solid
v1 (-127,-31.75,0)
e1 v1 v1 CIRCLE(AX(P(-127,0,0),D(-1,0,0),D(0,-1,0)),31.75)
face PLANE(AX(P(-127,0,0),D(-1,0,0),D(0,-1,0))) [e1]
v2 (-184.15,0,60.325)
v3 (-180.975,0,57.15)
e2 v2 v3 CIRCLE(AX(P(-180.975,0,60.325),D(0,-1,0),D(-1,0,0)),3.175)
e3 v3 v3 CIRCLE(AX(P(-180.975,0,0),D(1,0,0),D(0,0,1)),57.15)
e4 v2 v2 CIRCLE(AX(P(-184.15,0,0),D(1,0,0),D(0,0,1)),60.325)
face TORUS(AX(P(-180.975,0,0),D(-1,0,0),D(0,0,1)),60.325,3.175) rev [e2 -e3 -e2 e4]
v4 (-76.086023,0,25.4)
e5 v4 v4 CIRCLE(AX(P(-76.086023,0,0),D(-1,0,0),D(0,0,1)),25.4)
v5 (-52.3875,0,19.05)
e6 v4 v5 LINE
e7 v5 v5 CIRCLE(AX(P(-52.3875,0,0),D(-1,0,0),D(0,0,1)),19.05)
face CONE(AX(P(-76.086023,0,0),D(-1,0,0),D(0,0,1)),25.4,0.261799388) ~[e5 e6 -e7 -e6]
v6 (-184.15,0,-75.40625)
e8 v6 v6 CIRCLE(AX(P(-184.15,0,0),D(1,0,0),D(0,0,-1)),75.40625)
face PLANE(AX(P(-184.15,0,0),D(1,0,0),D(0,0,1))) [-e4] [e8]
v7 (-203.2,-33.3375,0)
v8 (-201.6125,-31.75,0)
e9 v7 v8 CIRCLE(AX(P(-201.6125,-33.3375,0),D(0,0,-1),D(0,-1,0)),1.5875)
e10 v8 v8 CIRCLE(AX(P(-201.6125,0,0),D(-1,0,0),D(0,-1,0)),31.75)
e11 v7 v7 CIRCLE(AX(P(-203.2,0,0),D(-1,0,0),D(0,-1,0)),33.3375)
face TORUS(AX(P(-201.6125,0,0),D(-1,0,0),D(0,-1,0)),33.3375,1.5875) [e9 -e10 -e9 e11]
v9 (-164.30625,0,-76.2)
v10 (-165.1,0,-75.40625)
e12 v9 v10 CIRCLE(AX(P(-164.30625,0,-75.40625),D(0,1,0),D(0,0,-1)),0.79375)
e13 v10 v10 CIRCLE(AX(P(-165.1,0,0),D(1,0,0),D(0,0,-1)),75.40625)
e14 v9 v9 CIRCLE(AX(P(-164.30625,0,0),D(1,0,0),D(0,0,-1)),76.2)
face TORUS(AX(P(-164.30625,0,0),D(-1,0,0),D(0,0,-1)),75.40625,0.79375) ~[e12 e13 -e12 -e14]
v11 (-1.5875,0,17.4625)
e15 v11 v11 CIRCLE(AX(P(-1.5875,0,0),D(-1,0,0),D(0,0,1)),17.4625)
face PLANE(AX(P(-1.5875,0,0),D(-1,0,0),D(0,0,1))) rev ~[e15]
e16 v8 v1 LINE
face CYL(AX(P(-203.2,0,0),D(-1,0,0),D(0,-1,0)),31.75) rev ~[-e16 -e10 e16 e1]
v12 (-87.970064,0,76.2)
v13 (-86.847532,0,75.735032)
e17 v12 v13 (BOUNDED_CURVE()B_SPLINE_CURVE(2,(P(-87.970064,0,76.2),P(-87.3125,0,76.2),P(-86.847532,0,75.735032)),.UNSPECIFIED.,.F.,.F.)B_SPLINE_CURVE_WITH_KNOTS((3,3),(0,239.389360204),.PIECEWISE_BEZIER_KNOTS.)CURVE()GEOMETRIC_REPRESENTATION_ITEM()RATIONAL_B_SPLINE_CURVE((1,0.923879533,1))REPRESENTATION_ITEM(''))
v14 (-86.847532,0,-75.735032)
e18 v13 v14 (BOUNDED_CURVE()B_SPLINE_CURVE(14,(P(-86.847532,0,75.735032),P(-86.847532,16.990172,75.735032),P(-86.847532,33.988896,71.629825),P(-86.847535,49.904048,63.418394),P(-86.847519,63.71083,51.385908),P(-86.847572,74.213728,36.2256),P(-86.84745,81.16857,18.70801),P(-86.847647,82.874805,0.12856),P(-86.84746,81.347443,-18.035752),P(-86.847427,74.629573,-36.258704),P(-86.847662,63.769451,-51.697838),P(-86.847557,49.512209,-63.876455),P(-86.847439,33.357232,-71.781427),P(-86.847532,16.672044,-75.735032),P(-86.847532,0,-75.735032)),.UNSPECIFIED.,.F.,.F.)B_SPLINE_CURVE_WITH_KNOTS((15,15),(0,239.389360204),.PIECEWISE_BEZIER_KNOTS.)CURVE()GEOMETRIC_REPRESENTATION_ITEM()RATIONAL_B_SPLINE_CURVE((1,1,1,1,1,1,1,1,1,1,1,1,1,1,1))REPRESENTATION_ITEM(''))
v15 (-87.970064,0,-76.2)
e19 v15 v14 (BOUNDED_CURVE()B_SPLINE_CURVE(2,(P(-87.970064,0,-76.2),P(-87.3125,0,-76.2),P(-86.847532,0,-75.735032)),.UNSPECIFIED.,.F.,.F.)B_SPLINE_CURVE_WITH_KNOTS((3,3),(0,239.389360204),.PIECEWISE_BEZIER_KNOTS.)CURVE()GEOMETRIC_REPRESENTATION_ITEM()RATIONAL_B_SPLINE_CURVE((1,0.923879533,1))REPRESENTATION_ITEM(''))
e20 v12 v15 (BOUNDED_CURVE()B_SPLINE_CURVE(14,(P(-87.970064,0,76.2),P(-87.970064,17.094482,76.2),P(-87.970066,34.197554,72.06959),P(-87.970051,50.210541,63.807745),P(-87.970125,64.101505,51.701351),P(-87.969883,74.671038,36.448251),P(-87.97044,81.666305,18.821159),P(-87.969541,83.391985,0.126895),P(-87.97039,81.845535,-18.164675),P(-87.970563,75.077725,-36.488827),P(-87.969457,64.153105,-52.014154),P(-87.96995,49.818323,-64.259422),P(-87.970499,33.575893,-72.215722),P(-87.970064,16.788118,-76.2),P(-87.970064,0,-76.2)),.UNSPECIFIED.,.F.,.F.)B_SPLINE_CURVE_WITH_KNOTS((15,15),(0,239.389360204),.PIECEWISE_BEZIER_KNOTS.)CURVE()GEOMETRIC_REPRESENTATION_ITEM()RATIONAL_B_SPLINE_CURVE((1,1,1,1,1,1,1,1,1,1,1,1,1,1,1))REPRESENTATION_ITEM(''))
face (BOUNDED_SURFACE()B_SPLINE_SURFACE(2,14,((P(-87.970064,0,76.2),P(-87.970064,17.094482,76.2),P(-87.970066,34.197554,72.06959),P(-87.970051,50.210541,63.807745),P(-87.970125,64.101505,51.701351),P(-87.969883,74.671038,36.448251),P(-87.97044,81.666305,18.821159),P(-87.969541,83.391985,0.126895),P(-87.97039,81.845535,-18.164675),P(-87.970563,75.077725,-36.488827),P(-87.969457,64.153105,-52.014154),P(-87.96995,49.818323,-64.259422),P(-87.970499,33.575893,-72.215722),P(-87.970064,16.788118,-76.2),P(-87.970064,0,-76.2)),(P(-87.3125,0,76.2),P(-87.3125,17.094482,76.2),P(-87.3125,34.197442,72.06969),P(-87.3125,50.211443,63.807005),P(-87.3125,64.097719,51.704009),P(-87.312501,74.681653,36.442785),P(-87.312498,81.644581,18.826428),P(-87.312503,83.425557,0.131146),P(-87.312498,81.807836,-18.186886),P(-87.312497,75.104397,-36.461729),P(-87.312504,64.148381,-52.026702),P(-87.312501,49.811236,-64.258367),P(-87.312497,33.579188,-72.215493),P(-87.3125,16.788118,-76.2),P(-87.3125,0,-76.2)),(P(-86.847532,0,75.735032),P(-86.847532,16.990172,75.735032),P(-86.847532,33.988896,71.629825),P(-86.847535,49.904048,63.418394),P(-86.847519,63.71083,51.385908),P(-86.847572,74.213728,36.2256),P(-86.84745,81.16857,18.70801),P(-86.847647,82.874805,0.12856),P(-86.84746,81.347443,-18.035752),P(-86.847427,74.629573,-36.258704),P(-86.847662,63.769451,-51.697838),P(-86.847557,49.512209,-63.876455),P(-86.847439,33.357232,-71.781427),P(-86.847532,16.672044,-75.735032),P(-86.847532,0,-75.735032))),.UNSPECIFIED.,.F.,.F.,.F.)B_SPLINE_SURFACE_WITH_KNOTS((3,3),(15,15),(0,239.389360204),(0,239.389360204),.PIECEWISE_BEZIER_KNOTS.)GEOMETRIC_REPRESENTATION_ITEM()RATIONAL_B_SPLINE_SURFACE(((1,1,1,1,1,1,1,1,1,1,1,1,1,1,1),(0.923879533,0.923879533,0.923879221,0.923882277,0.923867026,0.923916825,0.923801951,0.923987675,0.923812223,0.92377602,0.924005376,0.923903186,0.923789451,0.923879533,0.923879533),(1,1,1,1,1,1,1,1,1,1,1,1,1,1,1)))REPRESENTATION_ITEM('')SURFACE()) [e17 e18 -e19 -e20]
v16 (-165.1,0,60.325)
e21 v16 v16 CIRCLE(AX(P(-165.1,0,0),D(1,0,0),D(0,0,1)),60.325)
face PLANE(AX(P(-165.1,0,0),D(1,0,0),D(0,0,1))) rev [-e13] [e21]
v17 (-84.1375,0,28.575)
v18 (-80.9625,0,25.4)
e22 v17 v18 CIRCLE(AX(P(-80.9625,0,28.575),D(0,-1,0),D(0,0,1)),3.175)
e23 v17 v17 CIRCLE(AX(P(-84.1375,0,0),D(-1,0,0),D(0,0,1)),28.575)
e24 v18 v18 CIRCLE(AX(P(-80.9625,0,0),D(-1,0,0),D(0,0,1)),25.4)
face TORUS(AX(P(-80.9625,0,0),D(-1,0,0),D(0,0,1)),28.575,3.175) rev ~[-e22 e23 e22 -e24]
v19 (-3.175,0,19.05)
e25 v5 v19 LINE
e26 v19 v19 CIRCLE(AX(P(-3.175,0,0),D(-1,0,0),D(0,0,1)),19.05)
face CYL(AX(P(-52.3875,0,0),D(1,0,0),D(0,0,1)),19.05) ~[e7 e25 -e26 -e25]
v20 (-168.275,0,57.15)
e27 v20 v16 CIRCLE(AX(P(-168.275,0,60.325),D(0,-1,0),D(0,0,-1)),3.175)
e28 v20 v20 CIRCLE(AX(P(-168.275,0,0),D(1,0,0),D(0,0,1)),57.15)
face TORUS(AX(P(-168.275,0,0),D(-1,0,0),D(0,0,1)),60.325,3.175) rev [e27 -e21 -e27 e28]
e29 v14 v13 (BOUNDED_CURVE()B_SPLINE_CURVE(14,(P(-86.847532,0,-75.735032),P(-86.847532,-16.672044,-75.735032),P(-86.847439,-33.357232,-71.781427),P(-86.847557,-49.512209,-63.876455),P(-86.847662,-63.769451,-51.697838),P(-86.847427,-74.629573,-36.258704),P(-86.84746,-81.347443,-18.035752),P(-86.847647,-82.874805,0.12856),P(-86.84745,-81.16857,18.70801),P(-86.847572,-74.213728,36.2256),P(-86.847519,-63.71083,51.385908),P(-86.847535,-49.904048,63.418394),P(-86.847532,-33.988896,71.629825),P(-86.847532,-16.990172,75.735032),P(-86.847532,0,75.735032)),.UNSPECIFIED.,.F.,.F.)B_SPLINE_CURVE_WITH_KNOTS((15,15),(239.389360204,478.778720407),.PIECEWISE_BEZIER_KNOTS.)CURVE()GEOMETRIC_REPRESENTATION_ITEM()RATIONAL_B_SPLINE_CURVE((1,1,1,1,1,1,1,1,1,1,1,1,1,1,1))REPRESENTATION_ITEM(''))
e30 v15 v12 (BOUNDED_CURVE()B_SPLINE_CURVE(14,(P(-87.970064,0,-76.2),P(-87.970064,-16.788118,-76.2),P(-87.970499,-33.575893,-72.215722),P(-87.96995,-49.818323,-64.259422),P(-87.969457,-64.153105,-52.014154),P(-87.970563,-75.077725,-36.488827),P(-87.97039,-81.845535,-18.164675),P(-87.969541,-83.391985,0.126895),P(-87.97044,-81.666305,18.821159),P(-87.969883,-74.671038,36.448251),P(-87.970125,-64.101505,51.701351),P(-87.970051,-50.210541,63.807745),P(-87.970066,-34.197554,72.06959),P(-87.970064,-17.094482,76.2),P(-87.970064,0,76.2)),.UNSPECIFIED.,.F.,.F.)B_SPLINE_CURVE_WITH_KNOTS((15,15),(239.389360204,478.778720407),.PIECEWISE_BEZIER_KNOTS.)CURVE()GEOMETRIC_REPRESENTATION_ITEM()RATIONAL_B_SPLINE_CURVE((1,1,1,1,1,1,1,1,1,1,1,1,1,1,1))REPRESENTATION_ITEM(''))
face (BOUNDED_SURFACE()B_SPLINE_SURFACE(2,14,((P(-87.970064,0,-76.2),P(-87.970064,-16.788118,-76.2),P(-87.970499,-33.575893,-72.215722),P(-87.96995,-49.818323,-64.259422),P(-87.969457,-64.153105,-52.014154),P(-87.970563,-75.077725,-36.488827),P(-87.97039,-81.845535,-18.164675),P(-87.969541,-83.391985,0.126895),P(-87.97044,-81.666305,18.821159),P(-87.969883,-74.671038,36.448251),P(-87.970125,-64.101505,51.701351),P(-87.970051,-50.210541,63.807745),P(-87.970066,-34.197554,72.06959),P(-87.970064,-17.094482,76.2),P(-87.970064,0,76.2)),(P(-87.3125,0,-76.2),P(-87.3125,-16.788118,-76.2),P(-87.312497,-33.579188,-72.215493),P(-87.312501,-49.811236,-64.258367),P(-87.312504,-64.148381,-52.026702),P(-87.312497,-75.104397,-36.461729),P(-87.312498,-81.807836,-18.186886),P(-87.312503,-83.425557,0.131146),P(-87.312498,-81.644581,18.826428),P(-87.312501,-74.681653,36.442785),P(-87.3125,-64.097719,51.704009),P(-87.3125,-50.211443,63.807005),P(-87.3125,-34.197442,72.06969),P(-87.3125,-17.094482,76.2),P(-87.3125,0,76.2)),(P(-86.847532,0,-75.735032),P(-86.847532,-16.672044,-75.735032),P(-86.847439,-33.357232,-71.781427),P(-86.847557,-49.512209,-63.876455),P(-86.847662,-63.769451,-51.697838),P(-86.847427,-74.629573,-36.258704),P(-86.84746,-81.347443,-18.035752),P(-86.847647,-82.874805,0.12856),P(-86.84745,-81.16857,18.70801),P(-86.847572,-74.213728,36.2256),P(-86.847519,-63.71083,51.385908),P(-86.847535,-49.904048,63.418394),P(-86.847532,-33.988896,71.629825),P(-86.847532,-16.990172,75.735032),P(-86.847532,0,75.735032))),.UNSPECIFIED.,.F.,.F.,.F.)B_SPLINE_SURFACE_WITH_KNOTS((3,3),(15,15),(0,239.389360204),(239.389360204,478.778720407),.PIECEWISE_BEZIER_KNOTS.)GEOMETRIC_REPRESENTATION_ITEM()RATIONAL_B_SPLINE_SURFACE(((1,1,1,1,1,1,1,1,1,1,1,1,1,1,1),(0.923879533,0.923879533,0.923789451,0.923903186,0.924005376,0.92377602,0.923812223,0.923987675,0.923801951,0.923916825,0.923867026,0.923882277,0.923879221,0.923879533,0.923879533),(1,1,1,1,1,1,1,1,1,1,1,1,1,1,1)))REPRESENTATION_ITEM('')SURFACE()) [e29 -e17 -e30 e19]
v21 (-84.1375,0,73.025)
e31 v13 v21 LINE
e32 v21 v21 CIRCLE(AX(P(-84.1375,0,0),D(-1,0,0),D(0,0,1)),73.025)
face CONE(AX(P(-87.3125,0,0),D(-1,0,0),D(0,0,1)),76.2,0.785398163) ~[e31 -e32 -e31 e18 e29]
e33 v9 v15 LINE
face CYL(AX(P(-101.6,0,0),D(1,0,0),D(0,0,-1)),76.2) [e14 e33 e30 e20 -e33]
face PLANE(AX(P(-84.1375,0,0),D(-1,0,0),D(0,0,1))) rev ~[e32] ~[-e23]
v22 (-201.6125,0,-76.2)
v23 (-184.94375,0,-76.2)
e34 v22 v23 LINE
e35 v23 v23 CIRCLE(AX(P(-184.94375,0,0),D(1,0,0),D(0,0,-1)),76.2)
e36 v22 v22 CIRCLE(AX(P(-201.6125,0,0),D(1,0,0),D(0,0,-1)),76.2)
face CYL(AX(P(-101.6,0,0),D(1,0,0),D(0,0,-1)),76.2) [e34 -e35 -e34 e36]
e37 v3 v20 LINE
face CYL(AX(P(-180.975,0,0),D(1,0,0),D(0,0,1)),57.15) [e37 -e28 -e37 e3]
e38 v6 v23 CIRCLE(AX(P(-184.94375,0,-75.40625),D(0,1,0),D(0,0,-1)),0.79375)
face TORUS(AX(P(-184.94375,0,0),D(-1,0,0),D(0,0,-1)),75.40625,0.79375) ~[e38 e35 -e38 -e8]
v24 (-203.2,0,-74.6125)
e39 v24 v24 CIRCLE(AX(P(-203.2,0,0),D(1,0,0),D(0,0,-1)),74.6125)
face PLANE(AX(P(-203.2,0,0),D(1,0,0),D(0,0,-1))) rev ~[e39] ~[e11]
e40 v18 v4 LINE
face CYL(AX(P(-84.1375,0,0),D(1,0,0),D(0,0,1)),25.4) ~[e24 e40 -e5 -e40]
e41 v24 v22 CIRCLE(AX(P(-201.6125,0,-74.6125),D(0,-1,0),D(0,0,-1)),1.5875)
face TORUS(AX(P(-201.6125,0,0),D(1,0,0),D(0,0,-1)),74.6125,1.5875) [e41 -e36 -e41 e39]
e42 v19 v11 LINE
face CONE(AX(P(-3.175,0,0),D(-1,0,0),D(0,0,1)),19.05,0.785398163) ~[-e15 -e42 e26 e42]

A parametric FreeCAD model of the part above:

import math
import FreeCAD as App
import Part
import Sketcher
from FreeCAD import Vector
Q = App.Units.Quantity


def edges_at(feature, points):
    """Names of the edges that pass closest to the given points."""
    edges = feature.Shape.Edges
    near = lambda p: min(range(len(edges)), key=lambda i: edges[i].distToShape(Part.Vertex(*p))[0])
    return sorted({f"Edge{near(p) + 1}" for p in points})

doc = App.newDocument("Part")
body = doc.addObject("PartDesign::Body", "Body")

# Sketch on XZ plane
sketch1 = doc.addObject("Sketcher::SketchObject", "Sketch")
body.addObject(sketch1)
sketch1.AttachmentSupport = (doc.XZ_Plane, [""])
sketch1.MapMode = "FlatFace"
sketch1.addGeometry(Part.LineSegment(Vector(-203, 0, 0), Vector(-203, -76, 0)), False)
sketch1.addGeometry(Part.LineSegment(Vector(-203, -76, 0), Vector(0, -76, 0)), False)
sketch1.addGeometry(Part.LineSegment(Vector(0, -76, 0), Vector(0, 0, 0)), False)
sketch1.addGeometry(Part.LineSegment(Vector(0, 0, 0), Vector(-203, 0, 0)), False)
sketch1.addConstraint(Sketcher.Constraint("Coincident", 0, 2, 1, 1))
sketch1.addConstraint(Sketcher.Constraint("Coincident", 1, 2, 2, 1))
sketch1.addConstraint(Sketcher.Constraint("Coincident", 2, 2, 3, 1))
sketch1.addConstraint(Sketcher.Constraint("Coincident", 3, 2, 0, 1))
sketch1.addConstraint(Sketcher.Constraint("Vertical", 0))
sketch1.addConstraint(Sketcher.Constraint("Horizontal", 1))
sketch1.addConstraint(Sketcher.Constraint("Vertical", 2))
sketch1.addConstraint(Sketcher.Constraint("Horizontal", 3))
sketch1.addConstraint(Sketcher.Constraint("Coincident", 2, 2, -1, 1))
sketch1.addConstraint(Sketcher.Constraint("DistanceX", 1, 1, 1, 2, Q("8 in")))
sketch1.addConstraint(Sketcher.Constraint("DistanceY", 0, 2, 0, 1, Q("3 in")))
revolution = doc.addObject("PartDesign::Revolution", "Revolution")
body.addObject(revolution)
revolution.Profile = sketch1
revolution.ReferenceAxis = (sketch1, ["H_Axis"])
revolution.Angle = 360

# Sketch on XZ plane
sketch2 = doc.addObject("Sketcher::SketchObject", "Sketch001")
body.addObject(sketch2)
sketch2.AttachmentSupport = (doc.XZ_Plane, [""])
sketch2.MapMode = "FlatFace"
sketch2.addGeometry(Part.LineSegment(Vector(-1.6, 0, 0), Vector(0, 0, 0)), False)
sketch2.addGeometry(Part.LineSegment(Vector(0, 0, 0), Vector(0, 76.2, 0)), False)
sketch2.addGeometry(Part.LineSegment(Vector(0, 76.2, 0), Vector(-87.3, 76.2, 0)), False)
sketch2.addGeometry(Part.LineSegment(Vector(-87.3, 76.2, 0), Vector(-84.1, 73, 0)), False)
sketch2.addGeometry(Part.LineSegment(Vector(-84.1, 73, 0), Vector(-84.1, 25.4, 0)), False)
sketch2.addGeometry(Part.LineSegment(Vector(-84.1, 25.4, 0), Vector(-76.1, 25.4, 0)), False)
sketch2.addGeometry(Part.LineSegment(Vector(-76.1, 25.4, 0), Vector(-52.4, 19.1, 0)), False)
sketch2.addGeometry(Part.LineSegment(Vector(-52.4, 19.1, 0), Vector(-3.2, 19.1, 0)), False)
sketch2.addGeometry(Part.LineSegment(Vector(-3.2, 19.1, 0), Vector(-1.6, 17.5, 0)), False)
sketch2.addGeometry(Part.LineSegment(Vector(-1.6, 17.5, 0), Vector(-1.6, 0, 0)), False)
sketch2.addConstraint(Sketcher.Constraint("Coincident", 0, 2, 1, 1))
sketch2.addConstraint(Sketcher.Constraint("Coincident", 1, 2, 2, 1))
sketch2.addConstraint(Sketcher.Constraint("Coincident", 2, 2, 3, 1))
sketch2.addConstraint(Sketcher.Constraint("Coincident", 3, 2, 4, 1))
sketch2.addConstraint(Sketcher.Constraint("Coincident", 4, 2, 5, 1))
sketch2.addConstraint(Sketcher.Constraint("Coincident", 5, 2, 6, 1))
sketch2.addConstraint(Sketcher.Constraint("Coincident", 6, 2, 7, 1))
sketch2.addConstraint(Sketcher.Constraint("Coincident", 7, 2, 8, 1))
sketch2.addConstraint(Sketcher.Constraint("Coincident", 8, 2, 9, 1))
sketch2.addConstraint(Sketcher.Constraint("Coincident", 9, 2, 0, 1))
sketch2.addConstraint(Sketcher.Constraint("Horizontal", 0))
sketch2.addConstraint(Sketcher.Constraint("Vertical", 1))
sketch2.addConstraint(Sketcher.Constraint("Horizontal", 2))
sketch2.addConstraint(Sketcher.Constraint("Vertical", 4))
sketch2.addConstraint(Sketcher.Constraint("Horizontal", 5))
sketch2.addConstraint(Sketcher.Constraint("Horizontal", 7))
sketch2.addConstraint(Sketcher.Constraint("Vertical", 9))
sketch2.addConstraint(Sketcher.Constraint("Coincident", 0, 2, -1, 1))
sketch2.addConstraint(Sketcher.Constraint("Parallel", 3, 8))
sketch2.addConstraint(Sketcher.Constraint("DistanceY", 1, 1, 1, 2, Q("3 in")))
sketch2.addConstraint(Sketcher.Constraint("DistanceY", -1, 1, 4, 2, Q("1 in")))
sketch2.addConstraint(Sketcher.Constraint("Angle", 3, Q("-45 deg")))
sketch2.addConstraint(Sketcher.Constraint("Angle", 6, Q("-15 deg")))
sketch2.addConstraint(Sketcher.Constraint("DistanceX", 6, 2, 8, 2, Q("2 in")))
sketch2.addConstraint(Sketcher.Constraint("DistanceX", 0, 1, 0, 2, Q("0.0625 in")))
sketch2.addConstraint(Sketcher.Constraint("DistanceX", 2, 2, 2, 1, Q("3.4375 in")))
sketch2.addConstraint(Sketcher.Constraint("DistanceX", 7, 1, 7, 2, Q("1.9375 in")))
sketch2.addConstraint(Sketcher.Constraint("DistanceY", 4, 2, 4, 1, Q("1.875 in")))
sketch2.addConstraint(Sketcher.Constraint("DistanceY", 9, 2, 9, 1, Q("0.6875 in")))
groove = doc.addObject("PartDesign::Groove", "Groove")
body.addObject(groove)
groove.Profile = sketch2
groove.ReferenceAxis = (sketch2, ["H_Axis"])
groove.Angle = 360

# Sketch on YZ plane
sketch3 = doc.addObject("Sketcher::SketchObject", "Sketch002")
body.addObject(sketch3)
sketch3.AttachmentSupport = (doc.YZ_Plane, [""])
sketch3.MapMode = "FlatFace"
sketch3.AttachmentOffset = App.Placement(Vector(0, 0, -8 * 25.4), App.Rotation())
sketch3.addGeometry(Part.Circle(Vector(0, 0, 0), Vector(0, 0, 1), 32), False)
sketch3.addConstraint(Sketcher.Constraint("Coincident", 0, 3, -1, 1))
sketch3.addConstraint(Sketcher.Constraint("Diameter", 0, Q("2.5 in")))
pocket1 = doc.addObject("PartDesign::Pocket", "Pocket")
body.addObject(pocket1)
pocket1.Profile = sketch3
pocket1.Length = Q("3 in")
pocket1.Reversed = True
doc.recompute()

fillet = doc.addObject("PartDesign::Fillet", "Fillet")
body.addObject(fillet)
fillet.Base = (pocket1, edges_at(pocket1, [
    (-203.2, 31.75, 0),
    (-203.2, 0, 76.2),
    (-87.312, 76.2, 0),
    (-87.312, -76.2, 0),
]))
fillet.Radius = Q("0.0625 in")
doc.recompute()

fillet2 = doc.addObject("PartDesign::Fillet", "Fillet001")
body.addObject(fillet2)
fillet2.Base = (fillet, edges_at(fillet, [(-84.138, 0, -25.4)]))
fillet2.Radius = Q("0.125 in")

# Sketch on XZ plane
sketch4 = doc.addObject("Sketcher::SketchObject", "Sketch003")
body.addObject(sketch4)
sketch4.AttachmentSupport = (doc.XZ_Plane, [""])
sketch4.MapMode = "FlatFace"
sketch4.addGeometry(Part.LineSegment(Vector(-165.1, 80.1, 0), Vector(-184.2, 80.1, 0)), False)
sketch4.addGeometry(Part.LineSegment(Vector(-184.2, 80.1, 0), Vector(-184.2, 60.3, 0)), False)
sketch4.addGeometry(Part.ArcOfCircle(Part.Circle(Vector(-181, 60.3, 0), Vector(0, 0, 1), 3.2), math.radians(180), math.radians(270)), False)
sketch4.addGeometry(Part.LineSegment(Vector(-181, 57.1, 0), Vector(-168.3, 57.1, 0)), False)
sketch4.addGeometry(Part.ArcOfCircle(Part.Circle(Vector(-168.3, 60.3, 0), Vector(0, 0, 1), 3.2), math.radians(-90), math.radians(0)), False)
sketch4.addGeometry(Part.LineSegment(Vector(-165.1, 60.3, 0), Vector(-165.1, 80.1, 0)), False)
sketch4.addConstraint(Sketcher.Constraint("Coincident", 0, 2, 1, 1))
sketch4.addConstraint(Sketcher.Constraint("Tangent", 1, 2, 2, 1))
sketch4.addConstraint(Sketcher.Constraint("Tangent", 2, 2, 3, 1))
sketch4.addConstraint(Sketcher.Constraint("Tangent", 3, 2, 4, 1))
sketch4.addConstraint(Sketcher.Constraint("Tangent", 4, 2, 5, 1))
sketch4.addConstraint(Sketcher.Constraint("Coincident", 5, 2, 0, 1))
sketch4.addConstraint(Sketcher.Constraint("Horizontal", 0))
sketch4.addConstraint(Sketcher.Constraint("Vertical", 1))
sketch4.addConstraint(Sketcher.Constraint("Horizontal", 3))
sketch4.addConstraint(Sketcher.Constraint("Vertical", 5))
sketch4.addConstraint(Sketcher.Constraint("Equal", 2, 4))
sketch4.addConstraint(Sketcher.Constraint("DistanceX", 3, 1, 3, 2, Q("0.5 in")))
sketch4.addConstraint(Sketcher.Constraint("Radius", 2, Q("0.125 in")))
sketch4.addConstraint(Sketcher.Constraint("DistanceX", 4, 2, -1, 1, Q("6.5 in")))
sketch4.addConstraint(Sketcher.Constraint("DistanceY", -1, 1, 2, 2, Q("2.25 in")))
sketch4.addConstraint(Sketcher.Constraint("DistanceY", 1, 2, 1, 1, Q("19.72824 mm")))
groove2 = doc.addObject("PartDesign::Groove", "Groove001")
body.addObject(groove2)
groove2.Profile = sketch4
groove2.ReferenceAxis = (sketch4, ["H_Axis"])
groove2.Angle = 360
doc.recompute()

fillet3 = doc.addObject("PartDesign::Fillet", "Fillet002")
body.addObject(fillet3)
fillet3.Base = (groove2, edges_at(groove2, [(-165.1, 0, 76.2), (-184.15, 0, 76.2)]))
fillet3.Radius = Q("0.03125 in")

doc.recompute()
